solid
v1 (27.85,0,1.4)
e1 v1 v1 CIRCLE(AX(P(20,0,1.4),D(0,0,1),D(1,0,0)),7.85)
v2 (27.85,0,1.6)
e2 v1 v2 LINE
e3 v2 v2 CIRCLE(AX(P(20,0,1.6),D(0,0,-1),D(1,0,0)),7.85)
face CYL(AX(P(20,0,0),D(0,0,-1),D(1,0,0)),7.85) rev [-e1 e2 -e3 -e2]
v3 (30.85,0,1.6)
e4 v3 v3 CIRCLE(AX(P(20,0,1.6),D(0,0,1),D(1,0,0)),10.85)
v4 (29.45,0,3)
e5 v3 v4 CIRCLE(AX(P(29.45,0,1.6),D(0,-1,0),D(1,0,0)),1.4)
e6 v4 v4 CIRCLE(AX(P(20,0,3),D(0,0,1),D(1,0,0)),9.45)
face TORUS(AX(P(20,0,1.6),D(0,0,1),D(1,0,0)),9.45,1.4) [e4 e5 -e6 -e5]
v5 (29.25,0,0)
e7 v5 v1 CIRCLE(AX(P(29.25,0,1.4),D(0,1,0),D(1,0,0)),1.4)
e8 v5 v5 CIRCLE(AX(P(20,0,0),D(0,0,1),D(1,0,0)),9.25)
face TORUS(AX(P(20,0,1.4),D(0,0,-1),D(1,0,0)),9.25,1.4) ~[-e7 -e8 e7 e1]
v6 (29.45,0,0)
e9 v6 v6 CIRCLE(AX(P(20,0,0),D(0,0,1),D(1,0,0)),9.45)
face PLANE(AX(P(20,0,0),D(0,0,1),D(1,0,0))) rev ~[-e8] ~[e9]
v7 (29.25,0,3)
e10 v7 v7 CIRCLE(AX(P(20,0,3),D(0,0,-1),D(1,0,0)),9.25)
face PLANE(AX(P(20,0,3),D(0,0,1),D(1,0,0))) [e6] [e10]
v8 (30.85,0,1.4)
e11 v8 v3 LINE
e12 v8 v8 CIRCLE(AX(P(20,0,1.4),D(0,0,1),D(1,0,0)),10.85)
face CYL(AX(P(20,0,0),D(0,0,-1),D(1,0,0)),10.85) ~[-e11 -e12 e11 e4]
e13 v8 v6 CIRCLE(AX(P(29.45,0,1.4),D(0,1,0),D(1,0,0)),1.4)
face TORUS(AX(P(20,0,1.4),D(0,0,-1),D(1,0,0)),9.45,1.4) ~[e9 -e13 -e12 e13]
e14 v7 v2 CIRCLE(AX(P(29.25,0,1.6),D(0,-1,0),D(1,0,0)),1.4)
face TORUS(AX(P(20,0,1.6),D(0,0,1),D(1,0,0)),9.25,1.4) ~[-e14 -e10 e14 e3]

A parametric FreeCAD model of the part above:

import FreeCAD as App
import Part
import Sketcher

V = App.Vector


def edges_at(feature, points):
    """Names of the edges that pass closest to the given points."""
    edges = feature.Shape.Edges
    near = lambda p: min(range(len(edges)), key=lambda i: edges[i].distToShape(Part.Vertex(*p))[0])
    return sorted({f"Edge{near(p) + 1}" for p in points})

doc = App.newDocument("Part")
body = doc.addObject("PartDesign::Body", "Body")

sketch1 = body.newObject("Sketcher::SketchObject", "Sketch")
sketch1.AttachmentSupport = (doc.getObject("XY_Plane"), [""])
sketch1.MapMode = "FlatFace"
sketch1.addGeometry(Part.Circle(V(7, 0, 0), V(0, 0, 1), 7.85), False)
sketch1.addConstraint(Sketcher.Constraint("PointOnObject", 0, 3, -1))
sketch1.addConstraint(Sketcher.Constraint("Diameter", 0, 15.7))
sketch1.addConstraint(Sketcher.Constraint("DistanceX", -1, 1, 0, 3, 7.0))
pad1 = body.newObject("PartDesign::Pad", "Pad")
pad1.Profile = sketch1
pad1.Length = 10
body2 = doc.addObject("PartDesign::Body", "Body001")

sketch2 = body2.newObject("Sketcher::SketchObject", "Sketch001")
sketch2.AttachmentSupport = (doc.getObject("XY_Plane001"), [""])
sketch2.MapMode = "FlatFace"
sketch2.addGeometry(Part.Circle(V(7, 0, 0), V(0, 0, 1), 10.85), False)
sketch2.addConstraint(Sketcher.Constraint("PointOnObject", 0, 3, -1))
sketch2.addConstraint(Sketcher.Constraint("Diameter", 0, 21.7))
sketch2.addConstraint(Sketcher.Constraint("DistanceX", -1, 1, 0, 3, 7.0))
pad2 = body2.newObject("PartDesign::Pad", "Pad001")
pad2.Profile = sketch2
pad2.Length = 3
doc.recompute()

boolean = body2.newObject("PartDesign::Boolean", "Boolean")
boolean.Type = "Cut"
boolean.addObjects([body])
doc.recompute()

fillet = body2.newObject("PartDesign::Fillet", "Fillet")
fillet.Base = (boolean, edges_at(boolean, [
    (-3.85, 0, 3),
    (-3.85, 0, 0),
    (-0.85, 0, 3),
    (-0.85, 0, 0),
]))
fillet.Radius = 1.4
body3 = doc.addObject("PartDesign::Body", "Body002")
doc.recompute()

body2.Placement = App.Placement(V(13, 0, 0), App.Rotation(V(0, 0, 1), 0))
boolean2 = body3.newObject("PartDesign::Boolean", "Boolean001")
boolean2.Type = "Fuse"
boolean2.addObjects([body2])

doc.recompute()
